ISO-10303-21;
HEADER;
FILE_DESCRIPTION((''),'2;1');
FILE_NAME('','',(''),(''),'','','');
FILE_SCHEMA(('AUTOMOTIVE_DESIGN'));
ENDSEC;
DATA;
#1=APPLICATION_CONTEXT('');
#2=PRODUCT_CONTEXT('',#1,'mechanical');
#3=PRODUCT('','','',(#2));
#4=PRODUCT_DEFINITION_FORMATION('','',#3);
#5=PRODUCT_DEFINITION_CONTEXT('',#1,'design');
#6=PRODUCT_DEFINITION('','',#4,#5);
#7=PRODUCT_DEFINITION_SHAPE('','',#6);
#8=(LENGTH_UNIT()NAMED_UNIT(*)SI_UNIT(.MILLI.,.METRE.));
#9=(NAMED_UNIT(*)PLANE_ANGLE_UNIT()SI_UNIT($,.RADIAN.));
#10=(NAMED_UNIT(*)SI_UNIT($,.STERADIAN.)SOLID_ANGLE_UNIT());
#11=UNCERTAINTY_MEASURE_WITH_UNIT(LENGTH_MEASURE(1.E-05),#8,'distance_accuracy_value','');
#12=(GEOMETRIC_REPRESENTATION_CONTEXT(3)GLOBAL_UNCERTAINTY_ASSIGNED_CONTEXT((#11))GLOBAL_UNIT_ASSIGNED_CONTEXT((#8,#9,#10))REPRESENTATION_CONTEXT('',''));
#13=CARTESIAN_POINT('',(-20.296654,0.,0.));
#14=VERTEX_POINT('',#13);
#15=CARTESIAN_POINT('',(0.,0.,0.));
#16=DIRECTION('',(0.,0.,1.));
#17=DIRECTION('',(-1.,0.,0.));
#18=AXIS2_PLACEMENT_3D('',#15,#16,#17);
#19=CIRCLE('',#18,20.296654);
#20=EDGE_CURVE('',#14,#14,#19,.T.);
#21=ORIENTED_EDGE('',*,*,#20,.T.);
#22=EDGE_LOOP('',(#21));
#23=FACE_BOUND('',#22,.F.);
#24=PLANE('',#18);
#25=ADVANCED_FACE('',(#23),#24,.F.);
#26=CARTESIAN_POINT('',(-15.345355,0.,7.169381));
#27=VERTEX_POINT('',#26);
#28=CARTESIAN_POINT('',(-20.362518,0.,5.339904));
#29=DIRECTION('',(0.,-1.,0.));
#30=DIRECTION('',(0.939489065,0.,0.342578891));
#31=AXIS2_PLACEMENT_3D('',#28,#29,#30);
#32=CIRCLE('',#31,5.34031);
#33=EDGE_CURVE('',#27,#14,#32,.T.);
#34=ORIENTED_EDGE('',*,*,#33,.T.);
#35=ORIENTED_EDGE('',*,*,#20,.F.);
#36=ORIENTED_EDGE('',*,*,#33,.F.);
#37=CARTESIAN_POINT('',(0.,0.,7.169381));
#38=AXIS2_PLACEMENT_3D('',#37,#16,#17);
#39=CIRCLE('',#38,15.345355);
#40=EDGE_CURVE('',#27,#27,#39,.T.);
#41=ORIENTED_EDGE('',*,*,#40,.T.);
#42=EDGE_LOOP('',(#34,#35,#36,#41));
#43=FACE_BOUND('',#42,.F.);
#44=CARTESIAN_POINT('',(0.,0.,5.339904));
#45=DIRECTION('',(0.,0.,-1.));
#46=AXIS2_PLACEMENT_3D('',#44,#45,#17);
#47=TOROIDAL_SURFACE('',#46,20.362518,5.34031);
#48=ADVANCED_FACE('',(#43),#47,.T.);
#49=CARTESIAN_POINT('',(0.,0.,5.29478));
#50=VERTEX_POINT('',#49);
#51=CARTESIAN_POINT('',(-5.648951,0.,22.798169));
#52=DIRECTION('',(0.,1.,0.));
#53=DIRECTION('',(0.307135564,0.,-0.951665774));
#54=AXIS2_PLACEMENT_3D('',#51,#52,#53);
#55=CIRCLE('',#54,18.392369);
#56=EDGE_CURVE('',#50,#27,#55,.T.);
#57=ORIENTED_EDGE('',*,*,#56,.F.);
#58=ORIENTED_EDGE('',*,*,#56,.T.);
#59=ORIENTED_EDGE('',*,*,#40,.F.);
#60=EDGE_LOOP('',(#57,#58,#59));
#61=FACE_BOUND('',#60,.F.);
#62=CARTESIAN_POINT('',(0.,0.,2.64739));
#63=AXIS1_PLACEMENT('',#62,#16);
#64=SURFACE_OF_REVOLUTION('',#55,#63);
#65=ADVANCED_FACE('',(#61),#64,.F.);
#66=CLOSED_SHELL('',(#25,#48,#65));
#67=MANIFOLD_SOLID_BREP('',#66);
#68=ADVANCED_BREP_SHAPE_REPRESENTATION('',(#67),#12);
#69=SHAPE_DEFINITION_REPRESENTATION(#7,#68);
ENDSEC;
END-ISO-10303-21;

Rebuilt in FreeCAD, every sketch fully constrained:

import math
import FreeCAD as App
import Part
import Sketcher

V = App.Vector

doc = App.newDocument("Part")
params = doc.addObject("Spreadsheet::Sheet", "Params")
for row, (alias, value) in enumerate([
    ("revolution_angle", "360 deg"),
], start=1):
    params.set(f"A{row}", alias)
    params.set(f"B{row}", "=" + value)
    params.setAlias(f"B{row}", alias)

body = doc.addObject("PartDesign::Body", "Body")

sketch1 = body.newObject("Sketcher::SketchObject", "Sketch")
sketch1.AttachmentSupport = (doc.getObject("XZ_Plane"), [""])
sketch1.MapMode = "FlatFace"
sketch1.addGeometry([
    Part.LineSegment(V(-20, 0, 0), V(0, 0, 0)),
    Part.LineSegment(V(0, 0, 0), V(0, 5, 0)),
    Part.ArcOfCircle(Part.Circle(V(-6, 23, 0), V(0, 0, 1), 18), math.radians(-122), math.radians(-72)),
    Part.ArcOfCircle(Part.Circle(V(-20, 5, 0), V(0, 0, 1), 5), math.radians(20), math.radians(271)),
], False)
sketch1.addConstraint([
    Sketcher.Constraint("Coincident", 0, 2, 1, 1),
    Sketcher.Constraint("Coincident", 1, 2, 2, 2),
    Sketcher.Constraint("Coincident", 2, 1, 3, 1),
    Sketcher.Constraint("Coincident", 3, 2, 0, 1),
    Sketcher.Constraint("Horizontal", 0),
    Sketcher.Constraint("Vertical", 1),
    Sketcher.Constraint("Coincident", 0, 2, -1, 1),
    Sketcher.Constraint("Radius", 2, 18.392369),
    Sketcher.Constraint("Radius", 3, 5.34031),
    Sketcher.Constraint("DistanceY", 1, 1, 1, 2, 5.29478),
    Sketcher.Constraint("DistanceY", 1, 2, 2, 1, 1.874601),
    Sketcher.Constraint("DistanceX", 3, 2, 2, 1, 4.951299),
    Sketcher.Constraint("DistanceX", 0, 1, 0, 2, 20.296654),
])
revolution = body.newObject("PartDesign::Revolution", "Revolution")
revolution.Profile = sketch1
revolution.ReferenceAxis = (sketch1, ["V_Axis"])
revolution.setExpression("Angle", "Params.revolution_angle")

doc.recompute()
